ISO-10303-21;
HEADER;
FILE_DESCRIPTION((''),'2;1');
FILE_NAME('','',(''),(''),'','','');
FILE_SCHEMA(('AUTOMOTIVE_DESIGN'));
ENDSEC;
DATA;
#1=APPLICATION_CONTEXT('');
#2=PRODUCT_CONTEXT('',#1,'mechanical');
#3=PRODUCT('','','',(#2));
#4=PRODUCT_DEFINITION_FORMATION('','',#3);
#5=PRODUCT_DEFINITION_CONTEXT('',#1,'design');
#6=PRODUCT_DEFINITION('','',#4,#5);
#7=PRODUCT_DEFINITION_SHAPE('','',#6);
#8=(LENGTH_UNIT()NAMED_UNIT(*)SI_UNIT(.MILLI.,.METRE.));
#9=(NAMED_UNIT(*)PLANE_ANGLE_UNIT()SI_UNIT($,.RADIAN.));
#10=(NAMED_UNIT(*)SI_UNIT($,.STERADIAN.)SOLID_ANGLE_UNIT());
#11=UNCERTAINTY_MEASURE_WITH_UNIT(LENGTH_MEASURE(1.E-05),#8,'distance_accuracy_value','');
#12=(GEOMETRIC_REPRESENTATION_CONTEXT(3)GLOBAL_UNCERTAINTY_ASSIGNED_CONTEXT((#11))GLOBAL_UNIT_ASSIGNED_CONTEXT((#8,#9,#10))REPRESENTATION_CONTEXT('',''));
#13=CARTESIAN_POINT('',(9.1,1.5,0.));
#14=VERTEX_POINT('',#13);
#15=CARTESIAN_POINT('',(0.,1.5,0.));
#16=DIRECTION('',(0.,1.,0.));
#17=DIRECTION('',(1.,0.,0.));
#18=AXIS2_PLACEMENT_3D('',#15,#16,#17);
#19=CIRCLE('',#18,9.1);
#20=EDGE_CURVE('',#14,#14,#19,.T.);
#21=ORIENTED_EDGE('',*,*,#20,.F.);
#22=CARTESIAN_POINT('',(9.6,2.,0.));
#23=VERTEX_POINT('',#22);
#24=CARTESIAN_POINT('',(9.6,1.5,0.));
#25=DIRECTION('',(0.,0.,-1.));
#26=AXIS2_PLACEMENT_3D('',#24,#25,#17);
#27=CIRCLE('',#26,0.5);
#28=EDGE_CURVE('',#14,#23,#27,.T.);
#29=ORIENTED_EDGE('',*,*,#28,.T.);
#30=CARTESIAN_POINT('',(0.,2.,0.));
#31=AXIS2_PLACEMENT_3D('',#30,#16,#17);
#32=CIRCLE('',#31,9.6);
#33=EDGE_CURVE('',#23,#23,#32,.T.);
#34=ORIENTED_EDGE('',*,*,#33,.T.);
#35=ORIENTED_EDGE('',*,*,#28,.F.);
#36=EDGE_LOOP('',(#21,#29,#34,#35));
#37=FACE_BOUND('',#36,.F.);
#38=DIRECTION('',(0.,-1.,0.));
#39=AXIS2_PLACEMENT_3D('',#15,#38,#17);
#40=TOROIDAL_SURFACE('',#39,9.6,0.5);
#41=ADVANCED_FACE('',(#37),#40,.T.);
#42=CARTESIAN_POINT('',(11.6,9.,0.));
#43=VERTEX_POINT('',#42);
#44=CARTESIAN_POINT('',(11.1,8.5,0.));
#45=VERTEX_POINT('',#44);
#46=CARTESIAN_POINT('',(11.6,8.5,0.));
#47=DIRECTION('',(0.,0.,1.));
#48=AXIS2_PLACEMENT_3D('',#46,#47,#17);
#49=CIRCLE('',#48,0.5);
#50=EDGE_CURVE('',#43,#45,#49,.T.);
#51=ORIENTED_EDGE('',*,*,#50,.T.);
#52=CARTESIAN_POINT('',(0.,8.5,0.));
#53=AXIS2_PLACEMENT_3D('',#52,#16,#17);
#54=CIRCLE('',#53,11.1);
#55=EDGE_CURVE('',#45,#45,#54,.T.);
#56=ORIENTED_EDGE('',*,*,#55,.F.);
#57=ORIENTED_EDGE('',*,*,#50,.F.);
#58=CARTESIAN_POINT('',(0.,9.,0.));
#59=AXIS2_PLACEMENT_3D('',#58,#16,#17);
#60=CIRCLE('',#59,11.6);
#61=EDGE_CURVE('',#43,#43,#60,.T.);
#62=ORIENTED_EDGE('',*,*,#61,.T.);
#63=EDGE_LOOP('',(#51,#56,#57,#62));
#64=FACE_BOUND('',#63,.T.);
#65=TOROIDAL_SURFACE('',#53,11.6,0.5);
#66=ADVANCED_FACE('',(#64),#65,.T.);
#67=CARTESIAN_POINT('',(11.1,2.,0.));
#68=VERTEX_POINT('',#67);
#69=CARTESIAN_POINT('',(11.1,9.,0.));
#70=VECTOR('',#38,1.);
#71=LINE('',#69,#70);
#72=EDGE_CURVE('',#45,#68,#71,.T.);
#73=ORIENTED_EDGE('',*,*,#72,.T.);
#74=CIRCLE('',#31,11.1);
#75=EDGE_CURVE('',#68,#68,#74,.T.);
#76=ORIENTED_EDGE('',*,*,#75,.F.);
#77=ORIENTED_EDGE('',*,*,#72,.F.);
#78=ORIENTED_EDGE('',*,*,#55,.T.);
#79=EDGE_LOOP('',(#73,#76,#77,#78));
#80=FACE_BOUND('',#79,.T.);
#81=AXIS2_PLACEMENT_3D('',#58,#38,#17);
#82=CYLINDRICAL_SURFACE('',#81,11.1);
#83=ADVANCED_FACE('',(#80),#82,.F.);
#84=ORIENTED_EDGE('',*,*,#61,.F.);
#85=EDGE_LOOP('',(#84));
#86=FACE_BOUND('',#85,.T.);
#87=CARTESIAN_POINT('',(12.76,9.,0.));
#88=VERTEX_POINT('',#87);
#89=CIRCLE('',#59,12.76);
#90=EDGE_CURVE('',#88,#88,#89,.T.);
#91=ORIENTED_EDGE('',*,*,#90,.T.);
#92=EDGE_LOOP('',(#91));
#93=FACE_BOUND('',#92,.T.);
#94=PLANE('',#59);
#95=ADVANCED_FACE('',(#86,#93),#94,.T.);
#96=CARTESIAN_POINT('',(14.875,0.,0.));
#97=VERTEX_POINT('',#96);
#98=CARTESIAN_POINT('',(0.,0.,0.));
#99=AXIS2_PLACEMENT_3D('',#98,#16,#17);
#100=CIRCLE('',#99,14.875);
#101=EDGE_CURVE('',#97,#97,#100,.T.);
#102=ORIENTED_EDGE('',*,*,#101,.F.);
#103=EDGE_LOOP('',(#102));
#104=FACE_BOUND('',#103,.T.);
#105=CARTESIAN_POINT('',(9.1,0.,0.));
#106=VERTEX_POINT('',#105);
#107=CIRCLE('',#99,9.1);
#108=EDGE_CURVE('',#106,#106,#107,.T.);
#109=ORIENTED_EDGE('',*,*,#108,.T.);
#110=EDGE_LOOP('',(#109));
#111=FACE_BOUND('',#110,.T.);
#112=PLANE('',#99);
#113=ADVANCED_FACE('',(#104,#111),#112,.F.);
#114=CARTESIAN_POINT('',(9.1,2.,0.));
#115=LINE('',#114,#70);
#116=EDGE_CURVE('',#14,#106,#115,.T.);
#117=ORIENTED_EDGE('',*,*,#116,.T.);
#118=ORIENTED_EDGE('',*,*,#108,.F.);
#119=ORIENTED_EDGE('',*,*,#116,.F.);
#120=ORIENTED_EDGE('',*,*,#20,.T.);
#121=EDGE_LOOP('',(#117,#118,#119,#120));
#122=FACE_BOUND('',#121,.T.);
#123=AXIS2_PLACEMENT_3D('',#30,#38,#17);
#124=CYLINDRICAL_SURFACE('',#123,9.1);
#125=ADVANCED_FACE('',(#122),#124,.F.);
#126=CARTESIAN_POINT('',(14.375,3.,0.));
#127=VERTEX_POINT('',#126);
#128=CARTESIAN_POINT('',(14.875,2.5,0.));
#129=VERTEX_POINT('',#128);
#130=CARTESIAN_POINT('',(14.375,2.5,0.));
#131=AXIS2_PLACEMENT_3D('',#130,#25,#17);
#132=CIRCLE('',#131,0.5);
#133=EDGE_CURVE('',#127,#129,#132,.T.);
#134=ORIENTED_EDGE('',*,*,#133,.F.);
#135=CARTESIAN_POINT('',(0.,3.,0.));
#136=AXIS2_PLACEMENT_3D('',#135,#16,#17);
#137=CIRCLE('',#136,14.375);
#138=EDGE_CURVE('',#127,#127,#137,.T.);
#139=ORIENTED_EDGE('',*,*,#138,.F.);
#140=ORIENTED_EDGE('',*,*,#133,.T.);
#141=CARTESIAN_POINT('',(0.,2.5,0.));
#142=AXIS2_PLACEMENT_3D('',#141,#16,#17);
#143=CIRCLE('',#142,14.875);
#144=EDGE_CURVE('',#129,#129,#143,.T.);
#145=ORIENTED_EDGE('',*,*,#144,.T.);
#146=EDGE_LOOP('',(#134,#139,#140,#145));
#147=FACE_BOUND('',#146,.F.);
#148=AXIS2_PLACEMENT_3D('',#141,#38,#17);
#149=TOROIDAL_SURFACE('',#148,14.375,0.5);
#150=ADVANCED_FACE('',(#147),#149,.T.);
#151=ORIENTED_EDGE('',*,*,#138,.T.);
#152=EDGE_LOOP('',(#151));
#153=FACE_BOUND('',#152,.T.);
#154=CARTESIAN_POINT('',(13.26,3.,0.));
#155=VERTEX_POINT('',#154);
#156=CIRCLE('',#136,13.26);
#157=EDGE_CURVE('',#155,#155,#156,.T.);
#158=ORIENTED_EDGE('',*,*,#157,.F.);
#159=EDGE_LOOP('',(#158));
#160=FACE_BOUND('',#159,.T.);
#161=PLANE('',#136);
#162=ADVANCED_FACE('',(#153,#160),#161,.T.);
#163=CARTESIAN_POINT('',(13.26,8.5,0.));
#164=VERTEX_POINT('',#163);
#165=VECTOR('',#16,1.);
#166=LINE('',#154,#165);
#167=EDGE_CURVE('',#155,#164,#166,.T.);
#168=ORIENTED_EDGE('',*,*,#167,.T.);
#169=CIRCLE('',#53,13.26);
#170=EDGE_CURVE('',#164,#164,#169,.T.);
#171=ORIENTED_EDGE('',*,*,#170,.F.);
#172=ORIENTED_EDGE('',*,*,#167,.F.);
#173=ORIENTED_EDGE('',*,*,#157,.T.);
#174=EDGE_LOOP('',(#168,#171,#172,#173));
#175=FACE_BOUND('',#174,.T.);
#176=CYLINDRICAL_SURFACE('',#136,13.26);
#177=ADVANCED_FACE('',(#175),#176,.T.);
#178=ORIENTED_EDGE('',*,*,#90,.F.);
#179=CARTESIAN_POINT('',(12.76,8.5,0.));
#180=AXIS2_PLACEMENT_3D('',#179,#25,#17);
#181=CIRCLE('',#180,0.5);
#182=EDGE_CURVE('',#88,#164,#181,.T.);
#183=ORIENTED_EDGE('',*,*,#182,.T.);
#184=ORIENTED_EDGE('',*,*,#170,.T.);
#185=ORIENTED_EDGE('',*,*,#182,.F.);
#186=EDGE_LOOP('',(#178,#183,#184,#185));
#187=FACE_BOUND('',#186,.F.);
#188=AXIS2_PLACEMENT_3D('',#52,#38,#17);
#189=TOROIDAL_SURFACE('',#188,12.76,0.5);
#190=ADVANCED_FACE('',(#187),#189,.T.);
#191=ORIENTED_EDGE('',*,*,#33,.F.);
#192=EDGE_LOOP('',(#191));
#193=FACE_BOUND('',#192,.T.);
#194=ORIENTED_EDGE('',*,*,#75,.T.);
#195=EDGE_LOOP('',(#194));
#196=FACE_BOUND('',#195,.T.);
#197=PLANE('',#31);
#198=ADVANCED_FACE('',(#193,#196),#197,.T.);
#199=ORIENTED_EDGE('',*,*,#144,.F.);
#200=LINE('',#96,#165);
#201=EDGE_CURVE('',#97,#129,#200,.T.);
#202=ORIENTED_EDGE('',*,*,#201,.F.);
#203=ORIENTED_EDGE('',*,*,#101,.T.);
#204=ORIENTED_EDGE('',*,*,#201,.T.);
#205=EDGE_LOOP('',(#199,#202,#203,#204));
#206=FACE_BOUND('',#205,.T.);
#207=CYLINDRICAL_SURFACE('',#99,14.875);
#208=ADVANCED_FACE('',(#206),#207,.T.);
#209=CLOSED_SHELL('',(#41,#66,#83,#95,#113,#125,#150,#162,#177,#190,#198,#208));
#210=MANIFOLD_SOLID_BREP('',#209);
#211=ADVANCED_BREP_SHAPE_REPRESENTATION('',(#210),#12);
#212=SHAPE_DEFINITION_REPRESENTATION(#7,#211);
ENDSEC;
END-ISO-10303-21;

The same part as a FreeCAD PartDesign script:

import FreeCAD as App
import Part
import Sketcher

V = App.Vector
Q = App.Units.Quantity


def edges_at(feature, points):
    """Names of the edges that pass closest to the given points."""
    edges = feature.Shape.Edges
    near = lambda p: min(range(len(edges)), key=lambda i: edges[i].distToShape(Part.Vertex(*p))[0])
    return sorted({f"Edge{near(p) + 1}" for p in points})

doc = App.newDocument("Part")
body = doc.addObject("PartDesign::Body", "Body")

# Sketch on XY plane
sketch1 = body.newObject("Sketcher::SketchObject", "Sketch")
sketch1.AttachmentSupport = (doc.getObject("XY_Plane"), [""])
sketch1.MapMode = "FlatFace"
sketch1.addGeometry([
    Part.LineSegment(V(13.3, 9, 0), V(11.1, 9, 0)),  # 0
    Part.LineSegment(V(11.1, 9, 0), V(11.1, 2, 0)),  # 1
    Part.LineSegment(V(11.1, 2, 0), V(9.1, 2, 0)),  # 2
    Part.LineSegment(V(9.1, 2, 0), V(9.1, 0, 0)),  # 3
    Part.LineSegment(V(9.1, 0, 0), V(14.9, 0, 0)),  # 4
    Part.LineSegment(V(14.9, 0, 0), V(14.9, 3, 0)),  # 5
    Part.LineSegment(V(14.9, 3, 0), V(13.3, 3, 0)),  # 6
    Part.LineSegment(V(13.3, 3, 0), V(13.3, 9, 0)),  # 7
], False)
sketch1.addConstraint([
    Sketcher.Constraint("Coincident", 0, 2, 1, 1),
    Sketcher.Constraint("Coincident", 1, 2, 2, 1),
    Sketcher.Constraint("Coincident", 2, 2, 3, 1),
    Sketcher.Constraint("Coincident", 3, 2, 4, 1),
    Sketcher.Constraint("Coincident", 4, 2, 5, 1),
    Sketcher.Constraint("Coincident", 5, 2, 6, 1),
    Sketcher.Constraint("Coincident", 6, 2, 7, 1),
    Sketcher.Constraint("Coincident", 7, 2, 0, 1),
    Sketcher.Constraint("Horizontal", 0),
    Sketcher.Constraint("Vertical", 1),
    Sketcher.Constraint("Horizontal", 2),
    Sketcher.Constraint("Vertical", 3),
    Sketcher.Constraint("Horizontal", 4),
    Sketcher.Constraint("Vertical", 5),
    Sketcher.Constraint("Horizontal", 6),
    Sketcher.Constraint("Vertical", 7),
    Sketcher.Constraint("PointOnObject", 3, 2, -1),
    Sketcher.Constraint("Equal", 2, 3),
    Sketcher.Constraint("DistanceX", 2, 2, 2, 1, Q("2 mm")),
    Sketcher.Constraint("DistanceY", 1, 2, 1, 1, Q("7 mm")),
    Sketcher.Constraint("DistanceY", 7, 1, 7, 2, Q("6 mm")),
    Sketcher.Constraint("DistanceX", -1, 1, 0, 2, Q("11.1 mm")),
    Sketcher.Constraint("DistanceX", -1, 1, 6, 2, Q("13.26 mm")),
    Sketcher.Constraint("DistanceX", -1, 1, 4, 2, Q("14.875 mm")),
])
revolution = body.newObject("PartDesign::Revolution", "Revolution")
revolution.Profile = sketch1
revolution.ReferenceAxis = (sketch1, ["V_Axis"])
revolution.Angle = 360
doc.recompute()

fillet = body.newObject("PartDesign::Fillet", "Fillet")
fillet.Base = (revolution, edges_at(revolution, [
    (-13.26, 9, 0),
    (-11.1, 9, 0),
    (-14.875, 3, 0),
    (-9.1, 2, 0),
]))
fillet.Radius = 0.5

doc.recompute()
